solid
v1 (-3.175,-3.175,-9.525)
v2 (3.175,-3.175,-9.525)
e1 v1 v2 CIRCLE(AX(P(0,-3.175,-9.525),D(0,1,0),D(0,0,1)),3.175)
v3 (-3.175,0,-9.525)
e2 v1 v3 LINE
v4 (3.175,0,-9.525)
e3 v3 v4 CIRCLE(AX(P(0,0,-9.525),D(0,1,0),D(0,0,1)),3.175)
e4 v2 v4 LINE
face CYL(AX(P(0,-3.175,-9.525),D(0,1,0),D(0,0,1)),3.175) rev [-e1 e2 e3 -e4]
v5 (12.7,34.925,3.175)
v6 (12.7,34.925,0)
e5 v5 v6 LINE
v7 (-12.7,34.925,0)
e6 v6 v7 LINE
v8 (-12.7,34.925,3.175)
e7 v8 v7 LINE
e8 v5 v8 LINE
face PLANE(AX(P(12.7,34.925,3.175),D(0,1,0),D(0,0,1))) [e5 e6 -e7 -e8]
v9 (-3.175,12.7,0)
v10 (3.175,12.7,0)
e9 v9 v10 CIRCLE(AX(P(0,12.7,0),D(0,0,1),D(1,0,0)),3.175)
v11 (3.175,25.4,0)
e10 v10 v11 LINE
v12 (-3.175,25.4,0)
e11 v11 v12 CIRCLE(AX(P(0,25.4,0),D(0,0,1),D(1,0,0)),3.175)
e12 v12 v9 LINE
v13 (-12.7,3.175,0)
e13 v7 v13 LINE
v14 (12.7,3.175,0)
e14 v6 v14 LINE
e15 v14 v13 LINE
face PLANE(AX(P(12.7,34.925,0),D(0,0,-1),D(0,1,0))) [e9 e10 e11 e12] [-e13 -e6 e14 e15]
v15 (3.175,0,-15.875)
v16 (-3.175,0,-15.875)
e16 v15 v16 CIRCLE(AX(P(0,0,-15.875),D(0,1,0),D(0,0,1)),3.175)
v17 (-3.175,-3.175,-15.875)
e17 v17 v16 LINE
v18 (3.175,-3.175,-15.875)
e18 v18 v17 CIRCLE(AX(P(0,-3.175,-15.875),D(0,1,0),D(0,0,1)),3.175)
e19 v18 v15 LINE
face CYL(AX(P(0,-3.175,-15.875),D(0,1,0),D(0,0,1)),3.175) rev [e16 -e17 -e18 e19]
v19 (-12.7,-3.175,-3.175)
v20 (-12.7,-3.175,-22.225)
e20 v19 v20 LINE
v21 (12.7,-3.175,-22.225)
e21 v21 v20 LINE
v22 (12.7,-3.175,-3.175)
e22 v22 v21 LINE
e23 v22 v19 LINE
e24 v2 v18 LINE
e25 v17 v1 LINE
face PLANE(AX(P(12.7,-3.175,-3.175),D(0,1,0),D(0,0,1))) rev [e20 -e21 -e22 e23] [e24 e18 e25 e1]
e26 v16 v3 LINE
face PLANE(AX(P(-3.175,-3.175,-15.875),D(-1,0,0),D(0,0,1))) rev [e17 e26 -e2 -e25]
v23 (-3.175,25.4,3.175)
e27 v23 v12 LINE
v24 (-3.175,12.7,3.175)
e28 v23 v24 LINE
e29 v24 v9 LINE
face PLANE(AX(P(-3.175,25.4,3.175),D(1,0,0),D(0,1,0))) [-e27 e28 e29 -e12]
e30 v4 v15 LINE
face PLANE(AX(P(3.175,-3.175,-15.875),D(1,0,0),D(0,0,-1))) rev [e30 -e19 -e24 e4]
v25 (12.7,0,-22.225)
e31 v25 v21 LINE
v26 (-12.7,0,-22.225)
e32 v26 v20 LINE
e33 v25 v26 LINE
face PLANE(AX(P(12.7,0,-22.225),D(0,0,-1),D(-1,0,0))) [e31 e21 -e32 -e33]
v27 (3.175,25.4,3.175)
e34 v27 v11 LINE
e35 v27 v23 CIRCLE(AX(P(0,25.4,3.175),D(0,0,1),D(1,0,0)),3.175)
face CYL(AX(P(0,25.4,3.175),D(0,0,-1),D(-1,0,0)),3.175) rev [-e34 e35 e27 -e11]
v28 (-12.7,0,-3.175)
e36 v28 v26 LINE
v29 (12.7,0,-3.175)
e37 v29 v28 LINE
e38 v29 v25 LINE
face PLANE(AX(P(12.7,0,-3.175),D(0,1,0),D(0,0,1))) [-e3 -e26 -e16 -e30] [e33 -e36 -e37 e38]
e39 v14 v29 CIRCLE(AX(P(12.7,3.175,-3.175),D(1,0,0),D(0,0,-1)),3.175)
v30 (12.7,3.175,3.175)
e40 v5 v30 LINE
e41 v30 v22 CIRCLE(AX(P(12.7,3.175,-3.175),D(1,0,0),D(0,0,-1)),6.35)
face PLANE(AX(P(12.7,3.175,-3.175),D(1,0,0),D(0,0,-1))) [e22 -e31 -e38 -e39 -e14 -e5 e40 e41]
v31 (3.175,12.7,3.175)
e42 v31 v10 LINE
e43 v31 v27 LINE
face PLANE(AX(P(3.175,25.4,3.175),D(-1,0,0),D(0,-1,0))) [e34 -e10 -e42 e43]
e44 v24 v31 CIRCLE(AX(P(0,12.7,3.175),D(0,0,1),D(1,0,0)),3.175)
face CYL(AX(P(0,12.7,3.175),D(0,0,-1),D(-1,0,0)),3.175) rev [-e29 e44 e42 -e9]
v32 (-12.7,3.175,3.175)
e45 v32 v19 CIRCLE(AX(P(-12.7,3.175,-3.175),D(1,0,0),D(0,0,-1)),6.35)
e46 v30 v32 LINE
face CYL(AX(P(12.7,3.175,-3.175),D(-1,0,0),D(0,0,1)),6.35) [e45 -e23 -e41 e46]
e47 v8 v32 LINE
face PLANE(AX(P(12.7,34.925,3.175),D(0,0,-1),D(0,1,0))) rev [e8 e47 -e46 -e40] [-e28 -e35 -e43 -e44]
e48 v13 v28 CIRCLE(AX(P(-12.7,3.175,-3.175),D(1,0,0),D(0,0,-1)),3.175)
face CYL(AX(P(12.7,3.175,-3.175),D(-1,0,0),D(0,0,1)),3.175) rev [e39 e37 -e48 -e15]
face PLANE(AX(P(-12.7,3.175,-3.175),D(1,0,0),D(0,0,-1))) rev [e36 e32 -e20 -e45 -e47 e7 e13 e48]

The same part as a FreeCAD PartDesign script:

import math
import FreeCAD as App
import Part
import Sketcher
from FreeCAD import Vector
Q = App.Units.Quantity

doc = App.newDocument("Part")
body = doc.addObject("PartDesign::Body", "Body")

# Sketch on YZ plane
sketch1 = doc.addObject("Sketcher::SketchObject", "Sketch")
body.addObject(sketch1)
sketch1.AttachmentSupport = (doc.YZ_Plane, [""])
sketch1.MapMode = "FlatFace"
sketch1.addGeometry([
    Part.LineSegment(Vector(34.9, 3.2, 0), Vector(3.2, 3.2, 0)),  # 0
    Part.ArcOfCircle(Part.Circle(Vector(3.2, -3.2, 0), Vector(0, 0, 1), 6.3), math.radians(90), math.radians(180)),  # 1
    Part.LineSegment(Vector(-3.2, -3.2, 0), Vector(-3.2, -22.2, 0)),  # 2
    Part.LineSegment(Vector(-3.2, -22.2, 0), Vector(0, -22.2, 0)),  # 3
    Part.LineSegment(Vector(0, -22.2, 0), Vector(0, -3.2, 0)),  # 4
    Part.ArcOfCircle(Part.Circle(Vector(3.2, -3.2, 0), Vector(0, 0, 1), 3.2), math.radians(90), math.radians(180)),  # 5
    Part.LineSegment(Vector(3.2, 0, 0), Vector(34.9, 0, 0)),  # 6
    Part.LineSegment(Vector(34.9, 0, 0), Vector(34.9, 3.2, 0)),  # 7
], False)
sketch1.addConstraint([
    Sketcher.Constraint("Tangent", 0, 2, 1, 1),
    Sketcher.Constraint("Tangent", 1, 2, 2, 1),
    Sketcher.Constraint("Coincident", 2, 2, 3, 1),
    Sketcher.Constraint("Coincident", 3, 2, 4, 1),
    Sketcher.Constraint("Tangent", 4, 2, 5, 2),
    Sketcher.Constraint("Tangent", 5, 1, 6, 1),
    Sketcher.Constraint("Coincident", 6, 2, 7, 1),
    Sketcher.Constraint("Coincident", 7, 2, 0, 1),
    Sketcher.Constraint("Horizontal", 0),
    Sketcher.Constraint("Vertical", 2),
    Sketcher.Constraint("Horizontal", 3),
    Sketcher.Constraint("Vertical", 4),
    Sketcher.Constraint("Horizontal", 6),
    Sketcher.Constraint("Vertical", 7),
    Sketcher.Constraint("Coincident", 5, 3, 1, 3),
    Sketcher.Constraint("Symmetric", 0, 2, 1, 2, -1, 1),
    Sketcher.Constraint("PointOnObject", 3, 2, -2),
    Sketcher.Constraint("Radius", 1, Q("0.25 in")),
    Sketcher.Constraint("DistanceY", 2, 2, 0, 2, Q("1 in")),
    Sketcher.Constraint("DistanceX", 0, 2, 0, 1, Q("1.25 in")),
])
pad1 = doc.addObject("PartDesign::Pad", "Pad")
body.addObject(pad1)
pad1.Profile = sketch1
pad1.Length = Q("1 in")
pad1.Midplane = True

# Sketch on XY plane
sketch2 = doc.addObject("Sketcher::SketchObject", "Sketch001")
body.addObject(sketch2)
sketch2.AttachmentSupport = (doc.XY_Plane, [""])
sketch2.MapMode = "FlatFace"
sketch2.addGeometry([
    Part.LineSegment(Vector(3.2, 12.7, 0), Vector(3.2, 25.4, 0)),
    Part.ArcOfCircle(Part.Circle(Vector(0, 25.4, 0), Vector(0, 0, 1), 3.2), math.radians(0), math.radians(180)),
    Part.LineSegment(Vector(-3.2, 25.4, 0), Vector(-3.2, 12.7, 0)),
    Part.ArcOfCircle(Part.Circle(Vector(0, 12.7, 0), Vector(0, 0, 1), 3.2), math.radians(180), math.radians(360)),
], False)
sketch2.addConstraint([
    Sketcher.Constraint("Tangent", 0, 2, 1, 1),
    Sketcher.Constraint("Tangent", 1, 2, 2, 1),
    Sketcher.Constraint("Tangent", 2, 2, 3, 1),
    Sketcher.Constraint("Tangent", 3, 2, 0, 1),
    Sketcher.Constraint("Vertical", 0),
    Sketcher.Constraint("Vertical", 2),
    Sketcher.Constraint("PointOnObject", 1, 3, -2),
    Sketcher.Constraint("DistanceY", 0, 1, 0, 2, Q("0.5 in")),
    Sketcher.Constraint("DistanceY", -1, 1, 1, 3, Q("1 in")),
    Sketcher.Constraint("Radius", 1, Q("0.125 in")),
])
pocket1 = doc.addObject("PartDesign::Pocket", "Pocket")
body.addObject(pocket1)
pocket1.Profile = sketch2
pocket1.Type = "ThroughAll"
pocket1.Reversed = True

# Sketch on XZ plane
sketch3 = doc.addObject("Sketcher::SketchObject", "Sketch002")
body.addObject(sketch3)
sketch3.AttachmentSupport = (doc.XZ_Plane, [""])
sketch3.MapMode = "FlatFace"
sketch3.addGeometry([
    Part.LineSegment(Vector(-3.2, -15.9, 0), Vector(-3.2, -9.5, 0)),
    Part.ArcOfCircle(Part.Circle(Vector(0, -9.5, 0), Vector(0, 0, 1), 3.2), math.radians(0), math.radians(180)),
    Part.LineSegment(Vector(3.2, -9.5, 0), Vector(3.2, -15.9, 0)),
    Part.ArcOfCircle(Part.Circle(Vector(0, -15.9, 0), Vector(0, 0, 1), 3.2), math.radians(180), math.radians(360)),
], False)
sketch3.addConstraint([
    Sketcher.Constraint("Tangent", 0, 2, 1, 2),
    Sketcher.Constraint("Tangent", 1, 1, 2, 1),
    Sketcher.Constraint("Tangent", 2, 2, 3, 2),
    Sketcher.Constraint("Tangent", 3, 1, 0, 1),
    Sketcher.Constraint("Vertical", 0),
    Sketcher.Constraint("Vertical", 2),
    Sketcher.Constraint("PointOnObject", 1, 3, -2),
    Sketcher.Constraint("Radius", 1, Q("0.125 in")),
    Sketcher.Constraint("DistanceY", 0, 1, 0, 2, Q("0.25 in")),
    Sketcher.Constraint("DistanceY", 1, 3, -1, 1, Q("0.375 in")),
])
pocket2 = doc.addObject("PartDesign::Pocket", "Pocket001")
body.addObject(pocket2)
pocket2.Profile = sketch3
pocket2.Type = "ThroughAll"
pocket2.Reversed = True

doc.recompute()
